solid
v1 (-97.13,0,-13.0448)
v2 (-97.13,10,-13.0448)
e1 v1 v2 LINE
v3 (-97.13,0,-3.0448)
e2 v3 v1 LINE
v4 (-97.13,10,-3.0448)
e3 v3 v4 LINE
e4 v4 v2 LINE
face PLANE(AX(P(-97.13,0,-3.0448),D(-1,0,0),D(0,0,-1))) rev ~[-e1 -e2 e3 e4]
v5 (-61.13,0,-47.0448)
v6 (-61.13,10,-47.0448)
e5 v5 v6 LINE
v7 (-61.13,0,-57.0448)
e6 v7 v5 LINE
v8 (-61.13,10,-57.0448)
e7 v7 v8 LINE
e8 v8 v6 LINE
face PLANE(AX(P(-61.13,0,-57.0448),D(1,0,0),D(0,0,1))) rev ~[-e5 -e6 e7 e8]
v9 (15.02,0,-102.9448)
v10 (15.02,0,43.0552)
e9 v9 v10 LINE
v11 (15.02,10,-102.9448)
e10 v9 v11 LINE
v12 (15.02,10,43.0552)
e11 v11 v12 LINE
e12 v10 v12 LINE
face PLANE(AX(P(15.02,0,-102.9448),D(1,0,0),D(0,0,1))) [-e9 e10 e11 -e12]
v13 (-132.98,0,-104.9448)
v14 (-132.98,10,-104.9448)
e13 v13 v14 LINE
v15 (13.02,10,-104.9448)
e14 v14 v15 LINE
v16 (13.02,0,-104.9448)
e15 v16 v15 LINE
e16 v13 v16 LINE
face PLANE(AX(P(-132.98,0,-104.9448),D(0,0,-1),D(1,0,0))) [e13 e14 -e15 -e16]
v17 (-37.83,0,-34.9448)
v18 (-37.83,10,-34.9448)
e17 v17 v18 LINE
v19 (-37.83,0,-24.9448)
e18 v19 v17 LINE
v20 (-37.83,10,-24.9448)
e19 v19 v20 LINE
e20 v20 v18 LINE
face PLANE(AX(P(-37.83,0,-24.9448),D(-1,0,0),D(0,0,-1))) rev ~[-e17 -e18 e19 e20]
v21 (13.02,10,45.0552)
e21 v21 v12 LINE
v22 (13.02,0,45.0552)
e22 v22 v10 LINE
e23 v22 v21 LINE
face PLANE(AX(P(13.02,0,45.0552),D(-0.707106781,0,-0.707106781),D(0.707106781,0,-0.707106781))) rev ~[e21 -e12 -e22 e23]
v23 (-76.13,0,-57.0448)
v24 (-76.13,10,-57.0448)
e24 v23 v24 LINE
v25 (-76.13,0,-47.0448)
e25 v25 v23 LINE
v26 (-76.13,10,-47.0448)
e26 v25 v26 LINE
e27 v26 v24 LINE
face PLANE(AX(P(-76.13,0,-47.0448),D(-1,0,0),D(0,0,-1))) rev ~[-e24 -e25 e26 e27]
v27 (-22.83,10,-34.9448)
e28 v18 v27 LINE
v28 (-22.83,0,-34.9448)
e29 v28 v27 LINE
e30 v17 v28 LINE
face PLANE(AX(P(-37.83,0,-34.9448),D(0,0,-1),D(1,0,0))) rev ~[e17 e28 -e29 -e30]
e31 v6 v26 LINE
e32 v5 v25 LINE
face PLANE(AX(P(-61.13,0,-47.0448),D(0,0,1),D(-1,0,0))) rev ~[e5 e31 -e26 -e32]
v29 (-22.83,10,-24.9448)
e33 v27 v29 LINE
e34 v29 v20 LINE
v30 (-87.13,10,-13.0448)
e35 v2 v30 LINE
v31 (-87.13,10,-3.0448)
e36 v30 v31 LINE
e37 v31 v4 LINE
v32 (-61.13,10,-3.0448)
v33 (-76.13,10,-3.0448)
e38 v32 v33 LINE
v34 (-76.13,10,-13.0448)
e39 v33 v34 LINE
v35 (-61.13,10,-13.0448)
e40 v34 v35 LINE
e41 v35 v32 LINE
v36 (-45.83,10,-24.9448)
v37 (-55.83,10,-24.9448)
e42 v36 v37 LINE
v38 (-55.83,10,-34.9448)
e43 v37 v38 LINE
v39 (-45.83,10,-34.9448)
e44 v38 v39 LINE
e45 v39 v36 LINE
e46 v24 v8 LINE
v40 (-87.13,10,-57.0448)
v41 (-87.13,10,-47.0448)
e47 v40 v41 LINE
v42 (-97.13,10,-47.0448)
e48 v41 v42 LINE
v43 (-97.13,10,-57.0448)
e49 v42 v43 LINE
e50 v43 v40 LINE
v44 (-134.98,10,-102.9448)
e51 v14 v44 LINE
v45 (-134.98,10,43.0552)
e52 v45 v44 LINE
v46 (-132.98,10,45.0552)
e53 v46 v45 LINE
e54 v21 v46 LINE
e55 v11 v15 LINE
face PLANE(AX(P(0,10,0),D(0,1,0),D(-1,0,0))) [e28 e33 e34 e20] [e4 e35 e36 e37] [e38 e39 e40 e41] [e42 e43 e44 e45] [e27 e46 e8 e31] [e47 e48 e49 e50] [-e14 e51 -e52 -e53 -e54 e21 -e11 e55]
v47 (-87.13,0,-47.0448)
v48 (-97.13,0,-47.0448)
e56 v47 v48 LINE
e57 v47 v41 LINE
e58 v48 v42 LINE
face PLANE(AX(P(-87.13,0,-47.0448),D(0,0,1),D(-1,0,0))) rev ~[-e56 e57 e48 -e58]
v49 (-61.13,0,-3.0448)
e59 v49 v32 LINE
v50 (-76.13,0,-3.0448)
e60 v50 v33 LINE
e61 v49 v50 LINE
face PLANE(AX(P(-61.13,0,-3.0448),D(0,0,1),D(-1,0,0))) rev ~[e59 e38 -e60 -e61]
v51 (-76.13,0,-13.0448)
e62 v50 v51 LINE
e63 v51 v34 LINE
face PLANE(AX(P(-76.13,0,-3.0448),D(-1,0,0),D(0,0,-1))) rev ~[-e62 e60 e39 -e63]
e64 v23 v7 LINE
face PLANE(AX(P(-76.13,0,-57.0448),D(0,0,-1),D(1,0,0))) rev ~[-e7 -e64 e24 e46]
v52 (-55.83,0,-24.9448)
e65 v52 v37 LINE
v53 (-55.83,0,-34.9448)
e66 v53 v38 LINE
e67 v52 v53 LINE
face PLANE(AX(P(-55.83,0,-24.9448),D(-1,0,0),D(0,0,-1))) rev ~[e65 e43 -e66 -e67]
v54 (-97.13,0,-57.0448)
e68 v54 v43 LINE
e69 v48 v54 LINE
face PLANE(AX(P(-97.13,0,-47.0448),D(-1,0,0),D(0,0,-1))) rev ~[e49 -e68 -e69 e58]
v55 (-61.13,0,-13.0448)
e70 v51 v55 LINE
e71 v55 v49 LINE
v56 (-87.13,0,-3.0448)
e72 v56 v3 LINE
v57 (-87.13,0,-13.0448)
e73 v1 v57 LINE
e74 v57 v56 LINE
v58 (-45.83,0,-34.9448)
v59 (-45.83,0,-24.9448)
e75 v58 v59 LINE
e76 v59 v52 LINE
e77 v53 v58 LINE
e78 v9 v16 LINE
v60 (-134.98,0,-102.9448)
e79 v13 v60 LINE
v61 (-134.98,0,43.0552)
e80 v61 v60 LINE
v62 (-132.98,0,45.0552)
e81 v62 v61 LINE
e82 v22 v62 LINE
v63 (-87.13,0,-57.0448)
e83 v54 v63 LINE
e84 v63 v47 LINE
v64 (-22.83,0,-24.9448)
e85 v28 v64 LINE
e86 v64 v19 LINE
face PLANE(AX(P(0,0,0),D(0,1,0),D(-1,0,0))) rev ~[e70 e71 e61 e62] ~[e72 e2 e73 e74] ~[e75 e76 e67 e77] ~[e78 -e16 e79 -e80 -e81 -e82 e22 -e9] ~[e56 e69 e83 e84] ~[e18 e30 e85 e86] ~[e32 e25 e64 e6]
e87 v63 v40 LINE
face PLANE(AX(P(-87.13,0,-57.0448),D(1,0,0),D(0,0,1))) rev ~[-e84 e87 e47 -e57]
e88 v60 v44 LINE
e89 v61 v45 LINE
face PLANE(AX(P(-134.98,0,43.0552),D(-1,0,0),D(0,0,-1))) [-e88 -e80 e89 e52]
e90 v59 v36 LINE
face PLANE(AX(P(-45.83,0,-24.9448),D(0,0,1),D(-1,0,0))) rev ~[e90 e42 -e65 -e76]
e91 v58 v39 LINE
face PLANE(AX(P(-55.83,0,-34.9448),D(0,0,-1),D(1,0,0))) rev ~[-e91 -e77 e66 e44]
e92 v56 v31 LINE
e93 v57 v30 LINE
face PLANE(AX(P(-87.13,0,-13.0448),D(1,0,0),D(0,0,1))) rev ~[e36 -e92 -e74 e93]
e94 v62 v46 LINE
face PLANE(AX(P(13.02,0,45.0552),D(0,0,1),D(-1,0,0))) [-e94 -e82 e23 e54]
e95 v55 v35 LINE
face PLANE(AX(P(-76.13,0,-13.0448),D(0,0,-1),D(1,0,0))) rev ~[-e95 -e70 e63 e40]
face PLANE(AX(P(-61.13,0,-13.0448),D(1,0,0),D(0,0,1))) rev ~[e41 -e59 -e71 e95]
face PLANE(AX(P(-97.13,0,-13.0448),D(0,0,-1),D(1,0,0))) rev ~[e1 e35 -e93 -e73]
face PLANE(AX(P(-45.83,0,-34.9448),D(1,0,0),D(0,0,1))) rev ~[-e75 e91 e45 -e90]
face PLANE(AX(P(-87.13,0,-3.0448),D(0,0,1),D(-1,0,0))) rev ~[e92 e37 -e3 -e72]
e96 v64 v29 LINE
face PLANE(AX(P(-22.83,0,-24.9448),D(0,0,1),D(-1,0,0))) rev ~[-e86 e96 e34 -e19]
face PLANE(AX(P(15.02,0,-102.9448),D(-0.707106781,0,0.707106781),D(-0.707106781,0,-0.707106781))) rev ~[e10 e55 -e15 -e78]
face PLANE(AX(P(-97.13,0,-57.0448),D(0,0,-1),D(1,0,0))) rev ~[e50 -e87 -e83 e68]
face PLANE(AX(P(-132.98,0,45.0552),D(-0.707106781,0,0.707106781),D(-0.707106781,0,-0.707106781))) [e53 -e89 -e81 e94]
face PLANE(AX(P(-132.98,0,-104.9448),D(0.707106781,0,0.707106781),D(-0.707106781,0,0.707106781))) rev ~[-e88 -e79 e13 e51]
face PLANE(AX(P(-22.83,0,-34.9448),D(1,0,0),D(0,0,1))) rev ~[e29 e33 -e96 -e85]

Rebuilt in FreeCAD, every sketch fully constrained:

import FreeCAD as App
import Part
import Sketcher

V = App.Vector
Q = App.Units.Quantity


def add_polygon(sketch, points):
    """Adds a closed chain of lines whose ends are joined by coincident constraints."""
    first, n = sketch.GeometryCount, len(points)
    for a, b in zip(points, points[1:] + points[:1]):
        sketch.addGeometry(Part.LineSegment(App.Vector(*a, 0), App.Vector(*b, 0)), False)
    for i in range(n):
        sketch.addConstraint(Sketcher.Constraint("Coincident", first + i, 2, first + (i + 1) % n, 1))

doc = App.newDocument("Part")
body = doc.addObject("PartDesign::Body", "Body")

# Sketch on XZ plane
sketch1 = body.newObject("Sketcher::SketchObject", "Sketch")
sketch1.AttachmentSupport = (doc.getObject("XZ_Plane"), [""])
sketch1.MapMode = "FlatFace"
add_polygon(sketch1, [(-133, 45.1), (13, 45.1), (15, 43.1), (15, -102.9), (13, -104.9), (-133, -104.9), (-135, -102.9), (-135, 43.1)])  # lines 0-7
add_polygon(sketch1, [(-61.1, -57), (-61.1, -47), (-76.1, -47), (-76.1, -57)])  # lines 8-11
add_polygon(sketch1, [(-87.1, -57), (-87.1, -47), (-97.1, -47), (-97.1, -57)])  # lines 12-15
add_polygon(sketch1, [(-22.8, -34.9), (-22.8, -24.9), (-37.8, -24.9), (-37.8, -34.9)])  # lines 16-19
add_polygon(sketch1, [(-45.8, -34.9), (-45.8, -24.9), (-55.8, -24.9), (-55.8, -34.9)])  # lines 20-23
add_polygon(sketch1, [(-61.1, -13), (-61.1, -3), (-76.1, -3), (-76.1, -13)])  # lines 24-27
add_polygon(sketch1, [(-87.1, -13), (-87.1, -3), (-97.1, -3), (-97.1, -13)])  # lines 28-31
sketch1.addConstraint([
    Sketcher.Constraint("Horizontal", 0),
    Sketcher.Constraint("Vertical", 2),
    Sketcher.Constraint("Horizontal", 4),
    Sketcher.Constraint("Vertical", 6),
    Sketcher.Constraint("Vertical", 8),
    Sketcher.Constraint("Horizontal", 9),
    Sketcher.Constraint("Vertical", 10),
    Sketcher.Constraint("Horizontal", 11),
    Sketcher.Constraint("Vertical", 12),
    Sketcher.Constraint("Horizontal", 13),
    Sketcher.Constraint("Vertical", 14),
    Sketcher.Constraint("Horizontal", 15),
    Sketcher.Constraint("Vertical", 16),
    Sketcher.Constraint("Horizontal", 17),
    Sketcher.Constraint("Vertical", 18),
    Sketcher.Constraint("Horizontal", 19),
    Sketcher.Constraint("Vertical", 20),
    Sketcher.Constraint("Horizontal", 21),
    Sketcher.Constraint("Vertical", 22),
    Sketcher.Constraint("Horizontal", 23),
    Sketcher.Constraint("Vertical", 24),
    Sketcher.Constraint("Horizontal", 25),
    Sketcher.Constraint("Vertical", 26),
    Sketcher.Constraint("Horizontal", 27),
    Sketcher.Constraint("Vertical", 28),
    Sketcher.Constraint("Horizontal", 29),
    Sketcher.Constraint("Vertical", 30),
    Sketcher.Constraint("Horizontal", 31),
    Sketcher.Constraint("Perpendicular", 1, 3),
    Sketcher.Constraint("Perpendicular", 3, 5),
    Sketcher.Constraint("Perpendicular", 5, 7),
    Sketcher.Constraint("Horizontal", 2, 2, 5, 2),
    Sketcher.Constraint("Horizontal", 1, 2, 6, 2),
    Sketcher.Constraint("Horizontal", 9, 2, 12, 2),
    Sketcher.Constraint("Horizontal", 11, 2, 14, 2),
    Sketcher.Constraint("Horizontal", 17, 2, 20, 2),
    Sketcher.Constraint("Horizontal", 19, 2, 22, 2),
    Sketcher.Constraint("Horizontal", 25, 2, 28, 2),
    Sketcher.Constraint("Horizontal", 27, 2, 30, 2),
    Sketcher.Constraint("Vertical", 0, 2, 3, 2),
    Sketcher.Constraint("Vertical", 4, 2, 7, 2),
    Sketcher.Constraint("Vertical", 11, 2, 24, 2),
    Sketcher.Constraint("Vertical", 10, 2, 25, 2),
    Sketcher.Constraint("Vertical", 15, 2, 28, 2),
    Sketcher.Constraint("Vertical", 14, 2, 29, 2),
    Sketcher.Constraint("Equal", 11, 17),
    Sketcher.Constraint("Equal", 15, 21),
    Sketcher.Constraint("Equal", 4, 2),
    Sketcher.Constraint("Equal", 31, 8),
    Sketcher.Constraint("Equal", 14, 16),
    Sketcher.Constraint("Equal", 22, 24),
    Sketcher.Constraint("DistanceX", 0, 2, 1, 2, Q("2 mm")),
    Sketcher.Constraint("DistanceY", 3, 2, 0, 2, Q("150 mm")),
    Sketcher.Constraint("DistanceX", 9, 2, 9, 1, Q("15 mm")),
    Sketcher.Constraint("DistanceX", 13, 2, 13, 1, Q("10 mm")),
    Sketcher.Constraint("DistanceX", 12, 2, 9, 2, Q("11 mm")),
    Sketcher.Constraint("DistanceX", 20, 2, 17, 2, Q("8 mm")),
    Sketcher.Constraint("DistanceY", 13, 2, 30, 2, Q("34 mm")),
    Sketcher.Constraint("DistanceY", 4, 2, 8, 2, Q("57.9 mm")),
    Sketcher.Constraint("DistanceX", 8, 2, 16, 2, Q("38.3 mm")),
    Sketcher.Constraint("DistanceY", 8, 2, 16, 2, Q("22.1 mm")),
    Sketcher.Constraint("DistanceX", -1, 1, 0, 2, Q("13.02 mm")),
    Sketcher.Constraint("DistanceX", 8, 2, -1, 1, Q("61.13 mm")),
    Sketcher.Constraint("DistanceY", -1, 1, 0, 2, Q("45.0552 mm")),
])
pad1 = body.newObject("PartDesign::Pad", "Pad")
pad1.Profile = sketch1
pad1.Length = 10
pad1.Reversed = True

doc.recompute()
